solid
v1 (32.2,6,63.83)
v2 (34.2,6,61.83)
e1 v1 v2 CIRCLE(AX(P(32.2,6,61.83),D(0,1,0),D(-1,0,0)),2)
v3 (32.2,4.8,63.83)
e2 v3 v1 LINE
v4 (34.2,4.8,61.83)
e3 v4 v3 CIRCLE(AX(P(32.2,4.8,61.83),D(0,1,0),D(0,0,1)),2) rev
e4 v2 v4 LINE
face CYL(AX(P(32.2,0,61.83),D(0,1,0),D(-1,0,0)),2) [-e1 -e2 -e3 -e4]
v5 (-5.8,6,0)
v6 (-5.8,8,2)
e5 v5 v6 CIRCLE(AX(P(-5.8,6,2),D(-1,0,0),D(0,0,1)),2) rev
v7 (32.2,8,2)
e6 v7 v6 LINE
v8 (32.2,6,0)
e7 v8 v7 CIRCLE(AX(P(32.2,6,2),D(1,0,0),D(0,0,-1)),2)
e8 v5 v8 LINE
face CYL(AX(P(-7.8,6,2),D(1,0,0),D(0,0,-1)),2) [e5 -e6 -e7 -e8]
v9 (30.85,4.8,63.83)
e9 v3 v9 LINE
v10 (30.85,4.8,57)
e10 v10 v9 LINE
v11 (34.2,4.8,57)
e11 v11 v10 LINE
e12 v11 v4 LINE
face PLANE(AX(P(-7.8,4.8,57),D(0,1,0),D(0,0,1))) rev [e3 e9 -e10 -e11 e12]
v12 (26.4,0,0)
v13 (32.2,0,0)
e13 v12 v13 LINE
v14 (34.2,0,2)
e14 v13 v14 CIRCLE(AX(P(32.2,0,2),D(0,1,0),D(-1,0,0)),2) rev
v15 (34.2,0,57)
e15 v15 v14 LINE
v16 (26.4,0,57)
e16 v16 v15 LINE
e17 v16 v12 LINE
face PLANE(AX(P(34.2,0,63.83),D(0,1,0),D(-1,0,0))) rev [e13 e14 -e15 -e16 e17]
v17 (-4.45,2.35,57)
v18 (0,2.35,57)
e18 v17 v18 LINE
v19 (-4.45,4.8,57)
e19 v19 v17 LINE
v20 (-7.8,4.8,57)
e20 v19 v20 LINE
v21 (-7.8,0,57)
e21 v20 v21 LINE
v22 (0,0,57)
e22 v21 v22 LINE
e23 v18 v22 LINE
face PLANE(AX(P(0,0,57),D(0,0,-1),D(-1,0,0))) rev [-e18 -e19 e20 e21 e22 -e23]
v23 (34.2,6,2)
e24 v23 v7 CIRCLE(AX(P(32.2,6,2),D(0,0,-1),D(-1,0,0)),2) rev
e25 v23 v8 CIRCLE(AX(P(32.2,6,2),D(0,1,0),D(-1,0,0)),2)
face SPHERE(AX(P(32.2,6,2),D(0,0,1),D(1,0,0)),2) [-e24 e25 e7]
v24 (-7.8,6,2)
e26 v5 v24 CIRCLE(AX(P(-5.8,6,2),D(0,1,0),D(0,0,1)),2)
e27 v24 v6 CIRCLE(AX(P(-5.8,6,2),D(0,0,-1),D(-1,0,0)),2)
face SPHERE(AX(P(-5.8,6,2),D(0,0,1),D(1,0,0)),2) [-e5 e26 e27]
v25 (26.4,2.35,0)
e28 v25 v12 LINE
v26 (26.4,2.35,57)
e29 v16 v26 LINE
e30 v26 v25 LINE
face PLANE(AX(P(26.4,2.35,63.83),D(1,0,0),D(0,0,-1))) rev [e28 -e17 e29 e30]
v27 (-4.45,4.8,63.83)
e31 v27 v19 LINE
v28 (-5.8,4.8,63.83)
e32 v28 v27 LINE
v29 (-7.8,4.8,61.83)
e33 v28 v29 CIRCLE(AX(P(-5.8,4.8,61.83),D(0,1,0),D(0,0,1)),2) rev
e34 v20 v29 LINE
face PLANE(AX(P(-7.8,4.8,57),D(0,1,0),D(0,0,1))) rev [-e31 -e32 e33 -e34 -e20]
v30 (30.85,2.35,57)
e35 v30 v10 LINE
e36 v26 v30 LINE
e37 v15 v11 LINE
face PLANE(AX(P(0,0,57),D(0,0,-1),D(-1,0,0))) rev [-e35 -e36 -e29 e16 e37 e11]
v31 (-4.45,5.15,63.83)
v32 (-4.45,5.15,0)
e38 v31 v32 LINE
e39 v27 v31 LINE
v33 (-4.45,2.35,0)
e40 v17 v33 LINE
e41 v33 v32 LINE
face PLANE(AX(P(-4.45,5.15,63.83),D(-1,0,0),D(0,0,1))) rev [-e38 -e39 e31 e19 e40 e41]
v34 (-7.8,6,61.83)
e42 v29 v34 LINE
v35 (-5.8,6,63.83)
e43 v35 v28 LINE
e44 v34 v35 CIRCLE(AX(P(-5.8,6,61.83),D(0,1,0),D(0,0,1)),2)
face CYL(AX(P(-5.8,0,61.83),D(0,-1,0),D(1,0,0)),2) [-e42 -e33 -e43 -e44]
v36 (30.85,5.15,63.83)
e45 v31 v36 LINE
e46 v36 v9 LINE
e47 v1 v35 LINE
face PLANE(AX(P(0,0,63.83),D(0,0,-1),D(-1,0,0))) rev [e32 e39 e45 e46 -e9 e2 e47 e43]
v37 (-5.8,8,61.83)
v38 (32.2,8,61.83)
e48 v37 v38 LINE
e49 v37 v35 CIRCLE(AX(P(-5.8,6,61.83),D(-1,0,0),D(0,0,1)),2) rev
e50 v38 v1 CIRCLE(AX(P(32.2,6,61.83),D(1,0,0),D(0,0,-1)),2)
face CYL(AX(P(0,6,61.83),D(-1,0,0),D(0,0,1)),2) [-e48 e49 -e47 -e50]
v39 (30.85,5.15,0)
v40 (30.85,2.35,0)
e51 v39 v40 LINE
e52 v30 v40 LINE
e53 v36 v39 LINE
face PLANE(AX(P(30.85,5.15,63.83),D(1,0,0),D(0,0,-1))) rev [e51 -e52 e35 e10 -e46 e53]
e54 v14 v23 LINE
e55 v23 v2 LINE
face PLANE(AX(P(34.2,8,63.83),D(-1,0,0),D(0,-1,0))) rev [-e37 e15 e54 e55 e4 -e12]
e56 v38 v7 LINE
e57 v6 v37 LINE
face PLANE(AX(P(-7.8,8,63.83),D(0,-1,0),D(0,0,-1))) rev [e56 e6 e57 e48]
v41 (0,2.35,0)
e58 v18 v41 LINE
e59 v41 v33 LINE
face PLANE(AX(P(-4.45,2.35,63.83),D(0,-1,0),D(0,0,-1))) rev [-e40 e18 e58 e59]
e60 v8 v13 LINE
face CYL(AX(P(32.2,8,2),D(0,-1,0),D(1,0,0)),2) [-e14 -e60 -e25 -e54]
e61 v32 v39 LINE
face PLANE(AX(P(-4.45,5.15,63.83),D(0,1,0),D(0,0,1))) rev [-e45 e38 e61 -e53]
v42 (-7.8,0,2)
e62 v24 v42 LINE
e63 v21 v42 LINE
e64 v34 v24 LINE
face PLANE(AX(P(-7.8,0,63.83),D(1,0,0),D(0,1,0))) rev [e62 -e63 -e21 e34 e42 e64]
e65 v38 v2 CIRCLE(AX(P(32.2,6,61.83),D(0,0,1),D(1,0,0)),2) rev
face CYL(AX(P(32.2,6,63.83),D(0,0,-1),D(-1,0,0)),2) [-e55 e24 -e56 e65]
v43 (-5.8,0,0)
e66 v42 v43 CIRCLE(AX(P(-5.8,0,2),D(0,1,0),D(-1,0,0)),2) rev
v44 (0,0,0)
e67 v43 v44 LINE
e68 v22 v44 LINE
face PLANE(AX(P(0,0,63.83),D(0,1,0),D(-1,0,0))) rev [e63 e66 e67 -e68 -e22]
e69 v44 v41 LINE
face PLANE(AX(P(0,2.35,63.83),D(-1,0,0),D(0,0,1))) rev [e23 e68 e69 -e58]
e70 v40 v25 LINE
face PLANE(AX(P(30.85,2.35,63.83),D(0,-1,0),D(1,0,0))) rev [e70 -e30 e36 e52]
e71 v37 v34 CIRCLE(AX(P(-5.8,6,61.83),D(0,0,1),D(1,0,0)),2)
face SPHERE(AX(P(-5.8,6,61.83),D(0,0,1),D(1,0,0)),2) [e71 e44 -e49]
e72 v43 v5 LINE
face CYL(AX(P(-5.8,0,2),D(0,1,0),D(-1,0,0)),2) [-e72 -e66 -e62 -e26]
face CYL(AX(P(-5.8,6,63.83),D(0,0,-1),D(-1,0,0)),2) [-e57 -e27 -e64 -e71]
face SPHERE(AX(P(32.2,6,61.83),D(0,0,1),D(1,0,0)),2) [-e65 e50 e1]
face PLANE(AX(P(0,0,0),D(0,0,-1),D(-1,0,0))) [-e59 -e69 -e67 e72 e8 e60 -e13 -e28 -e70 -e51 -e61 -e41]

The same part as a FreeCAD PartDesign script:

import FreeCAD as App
import Part
import Sketcher

V = App.Vector
Q = App.Units.Quantity


def edges_at(feature, points):
    """Names of the edges that pass closest to the given points."""
    edges = feature.Shape.Edges
    near = lambda p: min(range(len(edges)), key=lambda i: edges[i].distToShape(Part.Vertex(*p))[0])
    return sorted({f"Edge{near(p) + 1}" for p in points})


def add_polygon(sketch, points):
    """Adds a closed chain of lines whose ends are joined by coincident constraints."""
    first, n = sketch.GeometryCount, len(points)
    for a, b in zip(points, points[1:] + points[:1]):
        sketch.addGeometry(Part.LineSegment(App.Vector(*a, 0), App.Vector(*b, 0)), False)
    for i in range(n):
        sketch.addConstraint(Sketcher.Constraint("Coincident", first + i, 2, first + (i + 1) % n, 1))

doc = App.newDocument("Part")
body = doc.addObject("PartDesign::Body", "Body")

# Sketch on XY plane
sketch1 = body.newObject("Sketcher::SketchObject", "Sketch")
sketch1.AttachmentSupport = (doc.getObject("XY_Plane"), [""])
sketch1.MapMode = "FlatFace"
add_polygon(sketch1, [(-4.45, 5.15), (30.85, 5.15), (30.85, 2.35), (26.4, 2.35), (26.4, 0), (34.2, 0), (34.2, 8), (-7.8, 8), (-7.8, 0), (0, 0), (0, 2.35), (-4.45, 2.35)])  # lines 0-11
sketch1.addConstraint([
    Sketcher.Constraint("Horizontal", 0),
    Sketcher.Constraint("Vertical", 1),
    Sketcher.Constraint("Horizontal", 2),
    Sketcher.Constraint("Vertical", 3),
    Sketcher.Constraint("Horizontal", 4),
    Sketcher.Constraint("Vertical", 5),
    Sketcher.Constraint("Horizontal", 6),
    Sketcher.Constraint("Vertical", 7),
    Sketcher.Constraint("Horizontal", 8),
    Sketcher.Constraint("Vertical", 9),
    Sketcher.Constraint("Horizontal", 10),
    Sketcher.Constraint("Vertical", 11),
    Sketcher.Constraint("Coincident", 8, 2, -1, 1),
    Sketcher.Constraint("PointOnObject", 3, 2, -1),
    Sketcher.Constraint("Horizontal", 2, 2, 9, 2),
    Sketcher.Constraint("Equal", 4, 8),
    Sketcher.Constraint("Equal", 2, 10),
    Sketcher.Constraint("DistanceX", 6, 2, 6, 1, Q("42 mm")),
    Sketcher.Constraint("DistanceY", 5, 1, 5, 2, Q("8 mm")),
    Sketcher.Constraint("DistanceX", 0, 1, 0, 2, Q("35.3 mm")),
    Sketcher.Constraint("DistanceX", 4, 1, 4, 2, Q("7.8 mm")),
    Sketcher.Constraint("DistanceY", 1, 2, 1, 1, Q("2.8 mm")),
    Sketcher.Constraint("DistanceY", 3, 2, 3, 1, Q("2.35 mm")),
])
pad1 = body.newObject("PartDesign::Pad", "Pad")
pad1.Profile = sketch1
pad1.Length = 63.83

# Sketch on XY plane
sketch2 = body.newObject("Sketcher::SketchObject", "Sketch001")
sketch2.AttachmentSupport = (doc.getObject("XY_Plane"), [""])
sketch2.MapMode = "FlatFace"
sketch2.AttachmentOffset = App.Placement(V(0, 0, 63.83), App.Rotation())
add_polygon(sketch2, [(-7.8, 4.8), (-7.8, 0), (34.2, 0), (34.2, 4.8)])  # lines 0-3
sketch2.addConstraint([
    Sketcher.Constraint("Vertical", 0),
    Sketcher.Constraint("Horizontal", 1),
    Sketcher.Constraint("Vertical", 2),
    Sketcher.Constraint("Horizontal", 3),
    Sketcher.Constraint("PointOnObject", 0, 2, -1),
    Sketcher.Constraint("DistanceX", 1, 1, 1, 2, Q("42 mm")),
    Sketcher.Constraint("DistanceY", 0, 2, 0, 1, Q("4.8 mm")),
    Sketcher.Constraint("DistanceX", 0, 2, -1, 1, Q("7.8 mm")),
])
pocket1 = body.newObject("PartDesign::Pocket", "Pocket")
pocket1.Profile = sketch2
pocket1.Length = 6.83
doc.recompute()

fillet = body.newObject("PartDesign::Fillet", "Fillet")
fillet.Base = (pocket1, edges_at(pocket1, [
    (-7.8, 4, 0),
    (13.2, 8, 0),
    (34.2, 4, 0),
    (-7.8, 8, 31.915),
    (34.2, 8, 31.915),
    (34.2, 6.4, 63.83),
    (13.2, 8, 63.83),
    (-7.8, 6.4, 63.83),
]))
fillet.Radius = 2

doc.recompute()
